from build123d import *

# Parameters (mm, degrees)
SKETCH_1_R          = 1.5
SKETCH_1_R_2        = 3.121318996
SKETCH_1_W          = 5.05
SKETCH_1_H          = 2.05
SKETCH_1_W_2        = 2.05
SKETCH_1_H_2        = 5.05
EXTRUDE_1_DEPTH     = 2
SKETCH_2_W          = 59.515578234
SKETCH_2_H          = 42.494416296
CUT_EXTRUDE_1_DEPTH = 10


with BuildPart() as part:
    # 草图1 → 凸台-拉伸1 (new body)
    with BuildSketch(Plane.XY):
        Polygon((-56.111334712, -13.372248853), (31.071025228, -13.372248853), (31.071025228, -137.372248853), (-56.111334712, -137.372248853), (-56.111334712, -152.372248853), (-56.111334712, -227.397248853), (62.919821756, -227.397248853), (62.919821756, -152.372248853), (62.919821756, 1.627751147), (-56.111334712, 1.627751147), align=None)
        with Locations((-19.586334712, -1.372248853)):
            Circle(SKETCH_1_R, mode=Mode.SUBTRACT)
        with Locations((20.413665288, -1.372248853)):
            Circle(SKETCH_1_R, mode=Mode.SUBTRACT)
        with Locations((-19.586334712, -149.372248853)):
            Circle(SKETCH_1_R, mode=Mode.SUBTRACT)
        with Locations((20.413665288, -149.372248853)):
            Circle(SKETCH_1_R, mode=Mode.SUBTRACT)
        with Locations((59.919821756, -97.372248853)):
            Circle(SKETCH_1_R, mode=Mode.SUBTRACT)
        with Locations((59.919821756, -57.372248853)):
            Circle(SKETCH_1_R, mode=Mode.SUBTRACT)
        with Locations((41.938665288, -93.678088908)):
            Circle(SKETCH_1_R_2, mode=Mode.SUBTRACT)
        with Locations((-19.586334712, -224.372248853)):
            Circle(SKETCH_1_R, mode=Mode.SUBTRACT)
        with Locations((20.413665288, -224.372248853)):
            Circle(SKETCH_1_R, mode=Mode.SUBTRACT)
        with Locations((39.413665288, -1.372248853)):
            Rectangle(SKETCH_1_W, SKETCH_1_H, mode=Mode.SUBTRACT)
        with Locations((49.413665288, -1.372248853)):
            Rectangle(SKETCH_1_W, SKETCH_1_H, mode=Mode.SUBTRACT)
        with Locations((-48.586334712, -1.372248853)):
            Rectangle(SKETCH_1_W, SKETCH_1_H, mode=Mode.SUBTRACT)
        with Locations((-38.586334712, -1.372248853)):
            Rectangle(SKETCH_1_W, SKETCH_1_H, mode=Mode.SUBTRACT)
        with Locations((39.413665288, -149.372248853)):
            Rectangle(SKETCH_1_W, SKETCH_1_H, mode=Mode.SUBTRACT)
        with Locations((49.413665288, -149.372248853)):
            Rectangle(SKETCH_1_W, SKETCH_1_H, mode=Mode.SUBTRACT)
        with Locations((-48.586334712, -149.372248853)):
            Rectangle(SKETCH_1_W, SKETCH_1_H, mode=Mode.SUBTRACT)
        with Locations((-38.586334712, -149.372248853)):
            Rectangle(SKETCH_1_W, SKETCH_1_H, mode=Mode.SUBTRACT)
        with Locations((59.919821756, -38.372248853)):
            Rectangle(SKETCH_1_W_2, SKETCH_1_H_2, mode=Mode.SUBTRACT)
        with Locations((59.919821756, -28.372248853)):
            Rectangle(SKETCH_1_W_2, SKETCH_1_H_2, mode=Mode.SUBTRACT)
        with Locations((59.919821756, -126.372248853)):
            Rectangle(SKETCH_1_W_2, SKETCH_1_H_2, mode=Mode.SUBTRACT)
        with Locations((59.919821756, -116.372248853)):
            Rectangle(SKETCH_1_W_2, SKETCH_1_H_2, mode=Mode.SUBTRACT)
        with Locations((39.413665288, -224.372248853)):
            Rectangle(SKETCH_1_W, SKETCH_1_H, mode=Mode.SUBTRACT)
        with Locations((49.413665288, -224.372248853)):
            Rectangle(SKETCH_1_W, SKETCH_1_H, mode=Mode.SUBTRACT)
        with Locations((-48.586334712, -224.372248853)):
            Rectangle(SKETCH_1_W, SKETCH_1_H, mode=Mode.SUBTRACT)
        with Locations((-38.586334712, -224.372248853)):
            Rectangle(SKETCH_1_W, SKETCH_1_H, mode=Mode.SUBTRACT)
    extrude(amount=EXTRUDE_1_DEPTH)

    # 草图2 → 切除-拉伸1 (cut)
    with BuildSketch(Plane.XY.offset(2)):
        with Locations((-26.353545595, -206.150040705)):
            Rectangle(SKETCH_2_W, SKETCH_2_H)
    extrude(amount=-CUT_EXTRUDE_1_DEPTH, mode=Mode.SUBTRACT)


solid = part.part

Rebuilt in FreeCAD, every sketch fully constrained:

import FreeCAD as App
import Part
import Sketcher

doc = App.newDocument("Part")
body = doc.addObject("PartDesign::Body", "Body")

# Sketch on XY plane
sketch1 = doc.addObject("Sketcher::SketchObject", "Sketch")
body.addObject(sketch1)
sketch1.AttachmentSupport = (doc.XY_Plane, [""])
sketch1.MapMode = "FlatFace"
sketch1.addGeometry([
    Part.LineSegment(App.Vector(-56.111335, -13.372249, 0), App.Vector(31.071025, -13.372249, 0)),  # 0
    Part.LineSegment(App.Vector(31.071025, -13.372249, 0), App.Vector(31.071025, -137.372249, 0)),  # 1
    Part.LineSegment(App.Vector(31.071025, -137.372249, 0), App.Vector(-56.111335, -137.372249, 0)),  # 2
    Part.LineSegment(App.Vector(-56.111335, -137.372249, 0), App.Vector(-56.111335, -227.397249, 0)),  # 3
    Part.LineSegment(App.Vector(-56.111335, -227.397249, 0), App.Vector(62.919822, -227.397249, 0)),  # 4
    Part.LineSegment(App.Vector(62.919822, -227.397249, 0), App.Vector(62.919822, 1.627751, 0)),  # 5
    Part.LineSegment(App.Vector(62.919822, 1.627751, 0), App.Vector(-56.111335, 1.627751, 0)),  # 6
    Part.LineSegment(App.Vector(-56.111335, 1.627751, 0), App.Vector(-56.111335, -13.372249, 0)),  # 7
    Part.LineSegment(App.Vector(-46.061335, -225.397249, 0), App.Vector(-51.111335, -225.397249, 0)),  # 8
    Part.LineSegment(App.Vector(-51.111335, -225.397249, 0), App.Vector(-51.111335, -223.347249, 0)),  # 9
    Part.LineSegment(App.Vector(-51.111335, -223.347249, 0), App.Vector(-46.061335, -223.347249, 0)),  # 10
    Part.LineSegment(App.Vector(-46.061335, -223.347249, 0), App.Vector(-46.061335, -225.397249, 0)),  # 11
    Part.LineSegment(App.Vector(-36.061335, -225.397249, 0), App.Vector(-41.111335, -225.397249, 0)),  # 12
    Part.LineSegment(App.Vector(-41.111335, -225.397249, 0), App.Vector(-41.111335, -223.347249, 0)),  # 13
    Part.LineSegment(App.Vector(-41.111335, -223.347249, 0), App.Vector(-36.061335, -223.347249, 0)),  # 14
    Part.LineSegment(App.Vector(-36.061335, -223.347249, 0), App.Vector(-36.061335, -225.397249, 0)),  # 15
    Part.Circle(App.Vector(-19.586335, -224.372249, 0), App.Vector(0, 0, 1), 1.5),  # 16
    Part.LineSegment(App.Vector(-46.061335, -150.397249, 0), App.Vector(-51.111335, -150.397249, 0)),  # 17
    Part.LineSegment(App.Vector(-51.111335, -150.397249, 0), App.Vector(-51.111335, -148.347249, 0)),  # 18
    Part.LineSegment(App.Vector(-51.111335, -148.347249, 0), App.Vector(-46.061335, -148.347249, 0)),  # 19
    Part.LineSegment(App.Vector(-46.061335, -148.347249, 0), App.Vector(-46.061335, -150.397249, 0)),  # 20
    Part.LineSegment(App.Vector(-36.061335, -150.397249, 0), App.Vector(-41.111335, -150.397249, 0)),  # 21
    Part.LineSegment(App.Vector(-41.111335, -150.397249, 0), App.Vector(-41.111335, -148.347249, 0)),  # 22
    Part.LineSegment(App.Vector(-41.111335, -148.347249, 0), App.Vector(-36.061335, -148.347249, 0)),  # 23
    Part.LineSegment(App.Vector(-36.061335, -148.347249, 0), App.Vector(-36.061335, -150.397249, 0)),  # 24
    Part.Circle(App.Vector(-19.586335, -149.372249, 0), App.Vector(0, 0, 1), 1.5),  # 25
    Part.Circle(App.Vector(20.413665, -224.372249, 0), App.Vector(0, 0, 1), 1.5),  # 26
    Part.LineSegment(App.Vector(41.938665, -225.397249, 0), App.Vector(36.888665, -225.397249, 0)),  # 27
    Part.LineSegment(App.Vector(36.888665, -225.397249, 0), App.Vector(36.888665, -223.347249, 0)),  # 28
    Part.LineSegment(App.Vector(36.888665, -223.347249, 0), App.Vector(41.938665, -223.347249, 0)),  # 29
    Part.LineSegment(App.Vector(41.938665, -223.347249, 0), App.Vector(41.938665, -225.397249, 0)),  # 30
    Part.LineSegment(App.Vector(51.938665, -225.397249, 0), App.Vector(46.888665, -225.397249, 0)),  # 31
    Part.LineSegment(App.Vector(46.888665, -225.397249, 0), App.Vector(46.888665, -223.347249, 0)),  # 32
    Part.LineSegment(App.Vector(46.888665, -223.347249, 0), App.Vector(51.938665, -223.347249, 0)),  # 33
    Part.LineSegment(App.Vector(51.938665, -223.347249, 0), App.Vector(51.938665, -225.397249, 0)),  # 34
    Part.Circle(App.Vector(20.413665, -149.372249, 0), App.Vector(0, 0, 1), 1.5),  # 35
    Part.LineSegment(App.Vector(41.938665, -150.397249, 0), App.Vector(36.888665, -150.397249, 0)),  # 36
    Part.LineSegment(App.Vector(36.888665, -150.397249, 0), App.Vector(36.888665, -148.347249, 0)),  # 37
    Part.LineSegment(App.Vector(36.888665, -148.347249, 0), App.Vector(41.938665, -148.347249, 0)),  # 38
    Part.LineSegment(App.Vector(41.938665, -148.347249, 0), App.Vector(41.938665, -150.397249, 0)),  # 39
    Part.LineSegment(App.Vector(51.938665, -150.397249, 0), App.Vector(46.888665, -150.397249, 0)),  # 40
    Part.LineSegment(App.Vector(46.888665, -150.397249, 0), App.Vector(46.888665, -148.347249, 0)),  # 41
    Part.LineSegment(App.Vector(46.888665, -148.347249, 0), App.Vector(51.938665, -148.347249, 0)),  # 42
    Part.LineSegment(App.Vector(51.938665, -148.347249, 0), App.Vector(51.938665, -150.397249, 0)),  # 43
    Part.LineSegment(App.Vector(60.944822, -128.897249, 0), App.Vector(58.894822, -128.897249, 0)),  # 44
    Part.LineSegment(App.Vector(58.894822, -128.897249, 0), App.Vector(58.894822, -123.847249, 0)),  # 45
    Part.LineSegment(App.Vector(58.894822, -123.847249, 0), App.Vector(60.944822, -123.847249, 0)),  # 46
    Part.LineSegment(App.Vector(60.944822, -123.847249, 0), App.Vector(60.944822, -128.897249, 0)),  # 47
    Part.LineSegment(App.Vector(60.944822, -118.897249, 0), App.Vector(58.894822, -118.897249, 0)),  # 48
    Part.LineSegment(App.Vector(58.894822, -118.897249, 0), App.Vector(58.894822, -113.847249, 0)),  # 49
    Part.LineSegment(App.Vector(58.894822, -113.847249, 0), App.Vector(60.944822, -113.847249, 0)),  # 50
    Part.LineSegment(App.Vector(60.944822, -113.847249, 0), App.Vector(60.944822, -118.897249, 0)),  # 51
    Part.LineSegment(App.Vector(-46.061335, -2.397249, 0), App.Vector(-51.111335, -2.397249, 0)),  # 52
    Part.LineSegment(App.Vector(-51.111335, -2.397249, 0), App.Vector(-51.111335, -0.347249, 0)),  # 53
    Part.LineSegment(App.Vector(-51.111335, -0.347249, 0), App.Vector(-46.061335, -0.347249, 0)),  # 54
    Part.LineSegment(App.Vector(-46.061335, -0.347249, 0), App.Vector(-46.061335, -2.397249, 0)),  # 55
    Part.LineSegment(App.Vector(-36.061335, -2.397249, 0), App.Vector(-41.111335, -2.397249, 0)),  # 56
    Part.LineSegment(App.Vector(-41.111335, -2.397249, 0), App.Vector(-41.111335, -0.347249, 0)),  # 57
    Part.LineSegment(App.Vector(-41.111335, -0.347249, 0), App.Vector(-36.061335, -0.347249, 0)),  # 58
    Part.LineSegment(App.Vector(-36.061335, -0.347249, 0), App.Vector(-36.061335, -2.397249, 0)),  # 59
    Part.Circle(App.Vector(-19.586335, -1.372249, 0), App.Vector(0, 0, 1), 1.5),  # 60
    Part.Circle(App.Vector(41.938665, -93.678089, 0), App.Vector(0, 0, 1), 3.121319),  # 61
    Part.Circle(App.Vector(59.919822, -97.372249, 0), App.Vector(0, 0, 1), 1.5),  # 62
    Part.Circle(App.Vector(59.919822, -57.372249, 0), App.Vector(0, 0, 1), 1.5),  # 63
    Part.Circle(App.Vector(20.413665, -1.372249, 0), App.Vector(0, 0, 1), 1.5),  # 64
    Part.LineSegment(App.Vector(60.944822, -40.897249, 0), App.Vector(58.894822, -40.897249, 0)),  # 65
    Part.LineSegment(App.Vector(58.894822, -40.897249, 0), App.Vector(58.894822, -35.847249, 0)),  # 66
    Part.LineSegment(App.Vector(58.894822, -35.847249, 0), App.Vector(60.944822, -35.847249, 0)),  # 67
    Part.LineSegment(App.Vector(60.944822, -35.847249, 0), App.Vector(60.944822, -40.897249, 0)),  # 68
    Part.LineSegment(App.Vector(60.944822, -30.897249, 0), App.Vector(58.894822, -30.897249, 0)),  # 69
    Part.LineSegment(App.Vector(58.894822, -30.897249, 0), App.Vector(58.894822, -25.847249, 0)),  # 70
    Part.LineSegment(App.Vector(58.894822, -25.847249, 0), App.Vector(60.944822, -25.847249, 0)),  # 71
    Part.LineSegment(App.Vector(60.944822, -25.847249, 0), App.Vector(60.944822, -30.897249, 0)),  # 72
    Part.LineSegment(App.Vector(41.938665, -2.397249, 0), App.Vector(36.888665, -2.397249, 0)),  # 73
    Part.LineSegment(App.Vector(36.888665, -2.397249, 0), App.Vector(36.888665, -0.347249, 0)),  # 74
    Part.LineSegment(App.Vector(36.888665, -0.347249, 0), App.Vector(41.938665, -0.347249, 0)),  # 75
    Part.LineSegment(App.Vector(41.938665, -0.347249, 0), App.Vector(41.938665, -2.397249, 0)),  # 76
    Part.LineSegment(App.Vector(51.938665, -2.397249, 0), App.Vector(46.888665, -2.397249, 0)),  # 77
    Part.LineSegment(App.Vector(46.888665, -2.397249, 0), App.Vector(46.888665, -0.347249, 0)),  # 78
    Part.LineSegment(App.Vector(46.888665, -0.347249, 0), App.Vector(51.938665, -0.347249, 0)),  # 79
    Part.LineSegment(App.Vector(51.938665, -0.347249, 0), App.Vector(51.938665, -2.397249, 0)),  # 80
], False)
sketch1.addConstraint([
    Sketcher.Constraint("Coincident", 0, 2, 1, 1),
    Sketcher.Constraint("Coincident", 1, 2, 2, 1),
    Sketcher.Constraint("Coincident", 2, 2, 3, 1),
    Sketcher.Constraint("Coincident", 3, 2, 4, 1),
    Sketcher.Constraint("Coincident", 4, 2, 5, 1),
    Sketcher.Constraint("Coincident", 5, 2, 6, 1),
    Sketcher.Constraint("Coincident", 6, 2, 7, 1),
    Sketcher.Constraint("Coincident", 7, 2, 0, 1),
    Sketcher.Constraint("Coincident", 8, 2, 9, 1),
    Sketcher.Constraint("Coincident", 9, 2, 10, 1),
    Sketcher.Constraint("Coincident", 10, 2, 11, 1),
    Sketcher.Constraint("Coincident", 11, 2, 8, 1),
    Sketcher.Constraint("Coincident", 12, 2, 13, 1),
    Sketcher.Constraint("Coincident", 13, 2, 14, 1),
    Sketcher.Constraint("Coincident", 14, 2, 15, 1),
    Sketcher.Constraint("Coincident", 15, 2, 12, 1),
    Sketcher.Constraint("Coincident", 17, 2, 18, 1),
    Sketcher.Constraint("Coincident", 18, 2, 19, 1),
    Sketcher.Constraint("Coincident", 19, 2, 20, 1),
    Sketcher.Constraint("Coincident", 20, 2, 17, 1),
    Sketcher.Constraint("Coincident", 21, 2, 22, 1),
    Sketcher.Constraint("Coincident", 22, 2, 23, 1),
    Sketcher.Constraint("Coincident", 23, 2, 24, 1),
    Sketcher.Constraint("Coincident", 24, 2, 21, 1),
    Sketcher.Constraint("Coincident", 27, 2, 28, 1),
    Sketcher.Constraint("Coincident", 28, 2, 29, 1),
    Sketcher.Constraint("Coincident", 29, 2, 30, 1),
    Sketcher.Constraint("Coincident", 30, 2, 27, 1),
    Sketcher.Constraint("Coincident", 31, 2, 32, 1),
    Sketcher.Constraint("Coincident", 32, 2, 33, 1),
    Sketcher.Constraint("Coincident", 33, 2, 34, 1),
    Sketcher.Constraint("Coincident", 34, 2, 31, 1),
    Sketcher.Constraint("Coincident", 36, 2, 37, 1),
    Sketcher.Constraint("Coincident", 37, 2, 38, 1),
    Sketcher.Constraint("Coincident", 38, 2, 39, 1),
    Sketcher.Constraint("Coincident", 39, 2, 36, 1),
    Sketcher.Constraint("Coincident", 40, 2, 41, 1),
    Sketcher.Constraint("Coincident", 41, 2, 42, 1),
    Sketcher.Constraint("Coincident", 42, 2, 43, 1),
    Sketcher.Constraint("Coincident", 43, 2, 40, 1),
    Sketcher.Constraint("Coincident", 44, 2, 45, 1),
    Sketcher.Constraint("Coincident", 45, 2, 46, 1),
    Sketcher.Constraint("Coincident", 46, 2, 47, 1),
    Sketcher.Constraint("Coincident", 47, 2, 44, 1),
    Sketcher.Constraint("Coincident", 48, 2, 49, 1),
    Sketcher.Constraint("Coincident", 49, 2, 50, 1),
    Sketcher.Constraint("Coincident", 50, 2, 51, 1),
    Sketcher.Constraint("Coincident", 51, 2, 48, 1),
    Sketcher.Constraint("Coincident", 52, 2, 53, 1),
    Sketcher.Constraint("Coincident", 53, 2, 54, 1),
    Sketcher.Constraint("Coincident", 54, 2, 55, 1),
    Sketcher.Constraint("Coincident", 55, 2, 52, 1),
    Sketcher.Constraint("Coincident", 56, 2, 57, 1),
    Sketcher.Constraint("Coincident", 57, 2, 58, 1),
    Sketcher.Constraint("Coincident", 58, 2, 59, 1),
    Sketcher.Constraint("Coincident", 59, 2, 56, 1),
    Sketcher.Constraint("Coincident", 65, 2, 66, 1),
    Sketcher.Constraint("Coincident", 66, 2, 67, 1),
    Sketcher.Constraint("Coincident", 67, 2, 68, 1),
    Sketcher.Constraint("Coincident", 68, 2, 65, 1),
    Sketcher.Constraint("Coincident", 69, 2, 70, 1),
    Sketcher.Constraint("Coincident", 70, 2, 71, 1),
    Sketcher.Constraint("Coincident", 71, 2, 72, 1),
    Sketcher.Constraint("Coincident", 72, 2, 69, 1),
    Sketcher.Constraint("Coincident", 73, 2, 74, 1),
    Sketcher.Constraint("Coincident", 74, 2, 75, 1),
    Sketcher.Constraint("Coincident", 75, 2, 76, 1),
    Sketcher.Constraint("Coincident", 76, 2, 73, 1),
    Sketcher.Constraint("Coincident", 77, 2, 78, 1),
    Sketcher.Constraint("Coincident", 78, 2, 79, 1),
    Sketcher.Constraint("Coincident", 79, 2, 80, 1),
    Sketcher.Constraint("Coincident", 80, 2, 77, 1),
    Sketcher.Constraint("Horizontal", 0),
    Sketcher.Constraint("Vertical", 1),
    Sketcher.Constraint("Horizontal", 2),
    Sketcher.Constraint("Vertical", 3),
    Sketcher.Constraint("Horizontal", 4),
    Sketcher.Constraint("Vertical", 5),
    Sketcher.Constraint("Horizontal", 6),
    Sketcher.Constraint("Vertical", 7),
    Sketcher.Constraint("Horizontal", 8),
    Sketcher.Constraint("Vertical", 9),
    Sketcher.Constraint("Horizontal", 10),
    Sketcher.Constraint("Vertical", 11),
    Sketcher.Constraint("Horizontal", 12),
    Sketcher.Constraint("Vertical", 13),
    Sketcher.Constraint("Horizontal", 14),
    Sketcher.Constraint("Vertical", 15),
    Sketcher.Constraint("Horizontal", 17),
    Sketcher.Constraint("Vertical", 18),
    Sketcher.Constraint("Horizontal", 19),
    Sketcher.Constraint("Vertical", 20),
    Sketcher.Constraint("Horizontal", 21),
    Sketcher.Constraint("Vertical", 22),
    Sketcher.Constraint("Horizontal", 23),
    Sketcher.Constraint("Vertical", 24),
    Sketcher.Constraint("Horizontal", 27),
    Sketcher.Constraint("Vertical", 28),
    Sketcher.Constraint("Horizontal", 29),
    Sketcher.Constraint("Vertical", 30),
    Sketcher.Constraint("Horizontal", 31),
    Sketcher.Constraint("Vertical", 32),
    Sketcher.Constraint("Horizontal", 33),
    Sketcher.Constraint("Vertical", 34),
    Sketcher.Constraint("Horizontal", 36),
    Sketcher.Constraint("Vertical", 37),
    Sketcher.Constraint("Horizontal", 38),
    Sketcher.Constraint("Vertical", 39),
    Sketcher.Constraint("Horizontal", 40),
    Sketcher.Constraint("Vertical", 41),
    Sketcher.Constraint("Horizontal", 42),
    Sketcher.Constraint("Vertical", 43),
    Sketcher.Constraint("Horizontal", 44),
    Sketcher.Constraint("Vertical", 45),
    Sketcher.Constraint("Horizontal", 46),
    Sketcher.Constraint("Vertical", 47),
    Sketcher.Constraint("Horizontal", 48),
    Sketcher.Constraint("Vertical", 49),
    Sketcher.Constraint("Horizontal", 50),
    Sketcher.Constraint("Vertical", 51),
    Sketcher.Constraint("Horizontal", 52),
    Sketcher.Constraint("Vertical", 53),
    Sketcher.Constraint("Horizontal", 54),
    Sketcher.Constraint("Vertical", 55),
    Sketcher.Constraint("Horizontal", 56),
    Sketcher.Constraint("Vertical", 57),
    Sketcher.Constraint("Horizontal", 58),
    Sketcher.Constraint("Vertical", 59),
    Sketcher.Constraint("Horizontal", 65),
    Sketcher.Constraint("Vertical", 66),
    Sketcher.Constraint("Horizontal", 67),
    Sketcher.Constraint("Vertical", 68),
    Sketcher.Constraint("Horizontal", 69),
    Sketcher.Constraint("Vertical", 70),
    Sketcher.Constraint("Horizontal", 71),
    Sketcher.Constraint("Vertical", 72),
    Sketcher.Constraint("Horizontal", 73),
    Sketcher.Constraint("Vertical", 74),
    Sketcher.Constraint("Horizontal", 75),
    Sketcher.Constraint("Vertical", 76),
    Sketcher.Constraint("Horizontal", 77),
    Sketcher.Constraint("Vertical", 78),
    Sketcher.Constraint("Horizontal", 79),
    Sketcher.Constraint("Vertical", 80),
    Sketcher.Constraint("Equal", 16, 25),
    Sketcher.Constraint("Equal", 25, 26),
    Sketcher.Constraint("Equal", 26, 35),
    Sketcher.Constraint("Equal", 35, 60),
    Sketcher.Constraint("Equal", 60, 62),
    Sketcher.Constraint("Equal", 62, 63),
    Sketcher.Constraint("Equal", 63, 64),
    Sketcher.Constraint("Horizontal", 16, 3, 26, 3),
    Sketcher.Constraint("Horizontal", 25, 3, 35, 3),
    Sketcher.Constraint("Horizontal", 60, 3, 64, 3),
    Sketcher.Constraint("Horizontal", 11, 2, 12, 2),
    Sketcher.Constraint("Horizontal", 10, 2, 13, 2),
    Sketcher.Constraint("Horizontal", 20, 2, 21, 2),
    Sketcher.Constraint("Horizontal", 19, 2, 22, 2),
    Sketcher.Constraint("Horizontal", 15, 2, 27, 2),
    Sketcher.Constraint("Horizontal", 14, 2, 28, 2),
    Sketcher.Constraint("Horizontal", 30, 2, 31, 2),
    Sketcher.Constraint("Horizontal", 29, 2, 32, 2),
    Sketcher.Constraint("Horizontal", 24, 2, 36, 2),
    Sketcher.Constraint("Horizontal", 23, 2, 37, 2),
    Sketcher.Constraint("Horizontal", 39, 2, 40, 2),
    Sketcher.Constraint("Horizontal", 38, 2, 41, 2),
    Sketcher.Constraint("Horizontal", 55, 2, 56, 2),
    Sketcher.Constraint("Horizontal", 54, 2, 57, 2),
    Sketcher.Constraint("Horizontal", 59, 2, 73, 2),
    Sketcher.Constraint("Horizontal", 58, 2, 74, 2),
    Sketcher.Constraint("Horizontal", 76, 2, 77, 2),
    Sketcher.Constraint("Horizontal", 75, 2, 78, 2),
    Sketcher.Constraint("Vertical", 16, 3, 25, 3),
    Sketcher.Constraint("Vertical", 26, 3, 35, 3),
    Sketcher.Constraint("Vertical", 25, 3, 60, 3),
    Sketcher.Constraint("Vertical", 62, 3, 63, 3),
    Sketcher.Constraint("Vertical", 35, 3, 64, 3),
    Sketcher.Constraint("Vertical", 3, 2, 6, 2),
    Sketcher.Constraint("Vertical", 9, 2, 17, 2),
    Sketcher.Constraint("Vertical", 11, 2, 19, 2),
    Sketcher.Constraint("Vertical", 13, 2, 21, 2),
    Sketcher.Constraint("Vertical", 15, 2, 23, 2),
    Sketcher.Constraint("Vertical", 61, 3, 29, 2),
    Sketcher.Constraint("Vertical", 28, 2, 36, 2),
    Sketcher.Constraint("Vertical", 30, 2, 38, 2),
    Sketcher.Constraint("Vertical", 32, 2, 40, 2),
    Sketcher.Constraint("Vertical", 34, 2, 42, 2),
    Sketcher.Constraint("Vertical", 45, 2, 48, 2),
    Sketcher.Constraint("Vertical", 47, 2, 50, 2),
    Sketcher.Constraint("Vertical", 18, 2, 52, 2),
    Sketcher.Constraint("Vertical", 20, 2, 54, 2),
    Sketcher.Constraint("Vertical", 22, 2, 56, 2),
    Sketcher.Constraint("Vertical", 24, 2, 58, 2),
    Sketcher.Constraint("Vertical", 49, 2, 65, 2),
    Sketcher.Constraint("Vertical", 51, 2, 67, 2),
    Sketcher.Constraint("Vertical", 66, 2, 69, 2),
    Sketcher.Constraint("Vertical", 68, 2, 71, 2),
    Sketcher.Constraint("Vertical", 37, 2, 73, 2),
    Sketcher.Constraint("Vertical", 39, 2, 75, 2),
    Sketcher.Constraint("Vertical", 41, 2, 77, 2),
    Sketcher.Constraint("Vertical", 43, 2, 79, 2),
    Sketcher.Constraint("Equal", 10, 12),
    Sketcher.Constraint("Equal", 23, 27),
    Sketcher.Constraint("Equal", 29, 31),
    Sketcher.Constraint("Equal", 71, 9),
    Sketcher.Constraint("Equal", 15, 18),
    Sketcher.Constraint("Equal", 79, 45),
    Sketcher.Constraint("Equal", 47, 49),
    Sketcher.Constraint("Equal", 43, 53),
    Sketcher.Constraint("Equal", 51, 66),
    Sketcher.Constraint("Equal", 68, 70),
    Sketcher.Constraint("Diameter", 16, 3.0),
    Sketcher.Constraint("DistanceY", 1, 2, 1, 1, 124.0),
    Sketcher.Constraint("DistanceY", 7, 2, 7, 1, 15.0),
    Sketcher.Constraint("DistanceX", 8, 2, 8, 1, 5.05),
    Sketcher.Constraint("DistanceX", 44, 2, 44, 1, 2.05),
    Sketcher.Constraint("DistanceY", 3, 2, 3, 1, 90.025),
    Sketcher.Constraint("Diameter", 61, 6.242638),
    Sketcher.Constraint("DistanceX", 0, 1, 0, 2, 87.18236),
    Sketcher.Constraint("DistanceX", 4, 1, 4, 2, 119.031156),
    Sketcher.Constraint("DistanceY", 16, 3, -1, 1, 224.372249),
    Sketcher.Constraint("DistanceY", 25, 3, -1, 1, 149.372249),
    Sketcher.Constraint("DistanceY", 60, 3, -1, 1, 1.372249),
    Sketcher.Constraint("DistanceY", 61, 3, -1, 1, 93.678089),
    Sketcher.Constraint("DistanceX", -1, 1, 62, 3, 59.919822),
    Sketcher.Constraint("DistanceY", 62, 3, -1, 1, 97.372249),
    Sketcher.Constraint("DistanceY", 63, 3, -1, 1, 57.372249),
    Sketcher.Constraint("DistanceY", 0, 2, -1, 1, 13.372249),
    Sketcher.Constraint("DistanceX", -1, 1, 4, 2, 62.919822),
    Sketcher.Constraint("DistanceY", 8, 2, -1, 1, 225.397249),
    Sketcher.Constraint("DistanceY", 17, 2, -1, 1, 150.397249),
    Sketcher.Constraint("DistanceX", -1, 1, 44, 2, 58.894822),
    Sketcher.Constraint("DistanceY", 44, 2, -1, 1, 128.897249),
    Sketcher.Constraint("DistanceY", 48, 2, -1, 1, 118.897249),
    Sketcher.Constraint("DistanceY", 52, 2, -1, 1, 2.397249),
    Sketcher.Constraint("DistanceY", 65, 2, -1, 1, 40.897249),
    Sketcher.Constraint("DistanceY", 69, 2, -1, 1, 30.897249),
    Sketcher.Constraint("DistanceX", 16, 3, -1, 1, 19.586335),
    Sketcher.Constraint("DistanceX", -1, 1, 26, 3, 20.413665),
    Sketcher.Constraint("DistanceX", -1, 1, 61, 3, 41.938665),
    Sketcher.Constraint("DistanceX", 8, 2, -1, 1, 51.111335),
    Sketcher.Constraint("DistanceX", 12, 2, -1, 1, 41.111335),
    Sketcher.Constraint("DistanceX", -1, 1, 31, 2, 46.888665),
])
pad1 = doc.addObject("PartDesign::Pad", "Pad")
body.addObject(pad1)
pad1.Profile = sketch1
pad1.Length = 2

# Sketch on XY plane
sketch2 = doc.addObject("Sketcher::SketchObject", "Sketch001")
body.addObject(sketch2)
sketch2.AttachmentSupport = (doc.XY_Plane, [""])
sketch2.MapMode = "FlatFace"
sketch2.AttachmentOffset = App.Placement(App.Vector(0, 0, 2), App.Rotation())
sketch2.addGeometry([
    Part.LineSegment(App.Vector(-56.111335, -184.902833, 0), App.Vector(-56.111335, -227.397249, 0)),
    Part.LineSegment(App.Vector(-56.111335, -227.397249, 0), App.Vector(3.404244, -227.397249, 0)),
    Part.LineSegment(App.Vector(3.404244, -227.397249, 0), App.Vector(3.404244, -184.902833, 0)),
    Part.LineSegment(App.Vector(3.404244, -184.902833, 0), App.Vector(-56.111335, -184.902833, 0)),
], False)
sketch2.addConstraint([
    Sketcher.Constraint("Coincident", 0, 2, 1, 1),
    Sketcher.Constraint("Coincident", 1, 2, 2, 1),
    Sketcher.Constraint("Coincident", 2, 2, 3, 1),
    Sketcher.Constraint("Coincident", 3, 2, 0, 1),
    Sketcher.Constraint("Vertical", 0),
    Sketcher.Constraint("Horizontal", 1),
    Sketcher.Constraint("Vertical", 2),
    Sketcher.Constraint("Horizontal", 3),
    Sketcher.Constraint("DistanceX", 1, 1, 1, 2, 59.515578),
    Sketcher.Constraint("DistanceY", 0, 2, 0, 1, 42.494416),
    Sketcher.Constraint("DistanceY", 0, 2, -1, 1, 227.397249),
    Sketcher.Constraint("DistanceX", 0, 2, -1, 1, 56.111335),
])
pocket1 = doc.addObject("PartDesign::Pocket", "Pocket")
body.addObject(pocket1)
pocket1.Profile = sketch2
pocket1.Length = 10

doc.recompute()
